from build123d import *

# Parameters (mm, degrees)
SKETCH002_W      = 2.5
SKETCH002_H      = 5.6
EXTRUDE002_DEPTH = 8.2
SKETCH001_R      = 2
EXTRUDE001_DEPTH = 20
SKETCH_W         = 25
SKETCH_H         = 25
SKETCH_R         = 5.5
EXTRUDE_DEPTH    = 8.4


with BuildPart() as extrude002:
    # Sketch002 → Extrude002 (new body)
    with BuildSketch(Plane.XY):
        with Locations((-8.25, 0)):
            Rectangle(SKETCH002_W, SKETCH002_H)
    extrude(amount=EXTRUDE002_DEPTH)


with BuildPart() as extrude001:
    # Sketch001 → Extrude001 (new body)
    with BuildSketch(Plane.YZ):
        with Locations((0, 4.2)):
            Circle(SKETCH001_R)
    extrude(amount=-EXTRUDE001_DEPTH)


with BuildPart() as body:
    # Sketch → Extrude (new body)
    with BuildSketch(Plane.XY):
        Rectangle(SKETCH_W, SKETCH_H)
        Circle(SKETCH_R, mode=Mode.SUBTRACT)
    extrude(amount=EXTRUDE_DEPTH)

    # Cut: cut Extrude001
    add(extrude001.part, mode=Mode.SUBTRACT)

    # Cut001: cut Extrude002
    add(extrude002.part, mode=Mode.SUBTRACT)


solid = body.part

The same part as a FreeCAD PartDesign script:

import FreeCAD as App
import Part
import Sketcher
from FreeCAD import Vector
Q = App.Units.Quantity


def add_polygon(sketch, points):
    """Adds a closed chain of lines whose ends are joined by coincident constraints."""
    first, n = sketch.GeometryCount, len(points)
    for a, b in zip(points, points[1:] + points[:1]):
        sketch.addGeometry(Part.LineSegment(App.Vector(*a, 0), App.Vector(*b, 0)), False)
    for i in range(n):
        sketch.addConstraint(Sketcher.Constraint("Coincident", first + i, 2, first + (i + 1) % n, 1))

doc = App.newDocument("Part")
body = doc.addObject("PartDesign::Body", "Body")

sketch1 = body.newObject("Sketcher::SketchObject", "Sketch")
sketch1.AttachmentSupport = (doc.getObject("XY_Plane"), [""])
sketch1.MapMode = "FlatFace"
add_polygon(sketch1, [(-9.5, 2.8), (-9.5, -2.8), (-7, -2.8), (-7, 2.8)])
sketch1.addConstraint(Sketcher.Constraint("Vertical", 0))
sketch1.addConstraint(Sketcher.Constraint("Horizontal", 1))
sketch1.addConstraint(Sketcher.Constraint("Vertical", 2))
sketch1.addConstraint(Sketcher.Constraint("Horizontal", 3))
sketch1.addConstraint(Sketcher.Constraint("DistanceX", 1, 1, 1, 2, Q("2.5 mm")))
sketch1.addConstraint(Sketcher.Constraint("DistanceY", 0, 2, 0, 1, Q("5.6 mm")))
sketch1.addConstraint(Sketcher.Constraint("DistanceX", 1, 2, -1, 1, Q("7 mm")))
sketch1.addConstraint(Sketcher.Constraint("DistanceY", 0, 2, -1, 1, Q("2.8 mm")))
pad1 = body.newObject("PartDesign::Pad", "Pad")
pad1.Profile = sketch1
pad1.Length = 8.2
body2 = doc.addObject("PartDesign::Body", "Body001")

sketch2 = body2.newObject("Sketcher::SketchObject", "Sketch001")
sketch2.AttachmentSupport = (doc.getObject("YZ_Plane001"), [""])
sketch2.MapMode = "FlatFace"
sketch2.addGeometry(Part.Circle(Vector(0, 4.2, 0), Vector(0, 0, 1), 2), False)
sketch2.addConstraint(Sketcher.Constraint("PointOnObject", 0, 3, -2))
sketch2.addConstraint(Sketcher.Constraint("Diameter", 0, Q("4 mm")))
sketch2.addConstraint(Sketcher.Constraint("DistanceY", -1, 1, 0, 3, Q("4.2 mm")))
pad2 = body2.newObject("PartDesign::Pad", "Pad001")
pad2.Profile = sketch2
pad2.Length = 20
pad2.Reversed = True
body3 = doc.addObject("PartDesign::Body", "Body002")

sketch3 = body3.newObject("Sketcher::SketchObject", "Sketch002")
sketch3.AttachmentSupport = (doc.getObject("XY_Plane002"), [""])
sketch3.MapMode = "FlatFace"
add_polygon(sketch3, [(-12, 12), (-12, -12), (12, -12), (12, 12)])
sketch3.addGeometry(Part.Circle(Vector(0, 0, 0), Vector(0, 0, 1), 6), False)
sketch3.addConstraint(Sketcher.Constraint("Vertical", 0))
sketch3.addConstraint(Sketcher.Constraint("Horizontal", 1))
sketch3.addConstraint(Sketcher.Constraint("Vertical", 2))
sketch3.addConstraint(Sketcher.Constraint("Horizontal", 3))
sketch3.addConstraint(Sketcher.Constraint("Coincident", 4, 3, -1, 1))
sketch3.addConstraint(Sketcher.Constraint("Symmetric", 0, 2, 2, 2, -1, 1))
sketch3.addConstraint(Sketcher.Constraint("Equal", 3, 0))
sketch3.addConstraint(Sketcher.Constraint("Diameter", 4, Q("11 mm")))
sketch3.addConstraint(Sketcher.Constraint("DistanceX", 1, 1, 1, 2, Q("25 mm")))
pad3 = body3.newObject("PartDesign::Pad", "Pad002")
pad3.Profile = sketch3
pad3.Length = 8.4
doc.recompute()

boolean = body3.newObject("PartDesign::Boolean", "Boolean")
boolean.Type = "Cut"
boolean.addObjects([body2])
doc.recompute()

boolean2 = body3.newObject("PartDesign::Boolean", "Boolean001")
boolean2.Type = "Cut"
boolean2.addObjects([body])

doc.recompute()
